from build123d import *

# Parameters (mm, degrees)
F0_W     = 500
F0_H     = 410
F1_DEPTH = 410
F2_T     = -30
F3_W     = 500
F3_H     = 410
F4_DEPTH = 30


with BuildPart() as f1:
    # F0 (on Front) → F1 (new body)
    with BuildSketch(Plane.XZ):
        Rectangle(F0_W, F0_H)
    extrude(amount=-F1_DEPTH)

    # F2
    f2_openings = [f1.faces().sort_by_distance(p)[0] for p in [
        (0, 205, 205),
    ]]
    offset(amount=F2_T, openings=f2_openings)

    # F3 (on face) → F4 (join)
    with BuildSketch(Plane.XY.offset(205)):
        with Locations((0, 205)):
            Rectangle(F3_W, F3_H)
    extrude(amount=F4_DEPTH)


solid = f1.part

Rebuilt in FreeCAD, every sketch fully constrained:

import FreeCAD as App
import Part
import Sketcher
from FreeCAD import Vector


def faces_at(feature, points):
    """Names of the faces that lie closest to the given points."""
    faces = feature.Shape.Faces
    near = lambda p: min(range(len(faces)), key=lambda i: faces[i].distToShape(Part.Vertex(*p))[0])
    return sorted({f"Face{near(p) + 1}" for p in points})

doc = App.newDocument("Part")
body = doc.addObject("PartDesign::Body", "Body")

# Sketch on XZ plane
sketch1 = body.newObject("Sketcher::SketchObject", "Sketch")
sketch1.AttachmentSupport = (doc.getObject("XZ_Plane"), [""])
sketch1.MapMode = "FlatFace"
sketch1.addGeometry(Part.LineSegment(Vector(-250, 205, 0), Vector(-250, -205, 0)), False)
sketch1.addGeometry(Part.LineSegment(Vector(-250, -205, 0), Vector(250, -205, 0)), False)
sketch1.addGeometry(Part.LineSegment(Vector(250, -205, 0), Vector(250, 205, 0)), False)
sketch1.addGeometry(Part.LineSegment(Vector(250, 205, 0), Vector(-250, 205, 0)), False)
sketch1.addConstraint(Sketcher.Constraint("Coincident", 0, 2, 1, 1))
sketch1.addConstraint(Sketcher.Constraint("Coincident", 1, 2, 2, 1))
sketch1.addConstraint(Sketcher.Constraint("Coincident", 2, 2, 3, 1))
sketch1.addConstraint(Sketcher.Constraint("Coincident", 3, 2, 0, 1))
sketch1.addConstraint(Sketcher.Constraint("Vertical", 0))
sketch1.addConstraint(Sketcher.Constraint("Horizontal", 1))
sketch1.addConstraint(Sketcher.Constraint("Vertical", 2))
sketch1.addConstraint(Sketcher.Constraint("Horizontal", 3))
sketch1.addConstraint(Sketcher.Constraint("Symmetric", 0, 2, 2, 2, -1, 1))
sketch1.addConstraint(Sketcher.Constraint("DistanceX", 1, 1, 1, 2, 500.0))
sketch1.addConstraint(Sketcher.Constraint("DistanceY", 0, 2, 0, 1, 410.0))
pad1 = body.newObject("PartDesign::Pad", "Pad")
pad1.Profile = sketch1
pad1.Length = 410
pad1.Reversed = True
doc.recompute()

thickness = body.newObject("PartDesign::Thickness", "Thickness")
thickness.Base = (pad1, faces_at(pad1, [(0, 205, 205)]))
thickness.Value = 30
thickness.Reversed = True
thickness.Join = "Arc"

# Sketch on XY plane
sketch2 = body.newObject("Sketcher::SketchObject", "Sketch001")
sketch2.AttachmentSupport = (doc.getObject("XY_Plane"), [""])
sketch2.MapMode = "FlatFace"
sketch2.AttachmentOffset = App.Placement(Vector(0, 0, 205), App.Rotation())
sketch2.addGeometry(Part.LineSegment(Vector(-250, 410, 0), Vector(-250, 0, 0)), False)
sketch2.addGeometry(Part.LineSegment(Vector(-250, 0, 0), Vector(250, 0, 0)), False)
sketch2.addGeometry(Part.LineSegment(Vector(250, 0, 0), Vector(250, 410, 0)), False)
sketch2.addGeometry(Part.LineSegment(Vector(250, 410, 0), Vector(-250, 410, 0)), False)
sketch2.addConstraint(Sketcher.Constraint("Coincident", 0, 2, 1, 1))
sketch2.addConstraint(Sketcher.Constraint("Coincident", 1, 2, 2, 1))
sketch2.addConstraint(Sketcher.Constraint("Coincident", 2, 2, 3, 1))
sketch2.addConstraint(Sketcher.Constraint("Coincident", 3, 2, 0, 1))
sketch2.addConstraint(Sketcher.Constraint("Vertical", 0))
sketch2.addConstraint(Sketcher.Constraint("Horizontal", 1))
sketch2.addConstraint(Sketcher.Constraint("Vertical", 2))
sketch2.addConstraint(Sketcher.Constraint("Horizontal", 3))
sketch2.addConstraint(Sketcher.Constraint("Symmetric", 0, 2, 1, 2, -1, 1))
sketch2.addConstraint(Sketcher.Constraint("DistanceX", 1, 1, 1, 2, 500.0))
sketch2.addConstraint(Sketcher.Constraint("DistanceY", 0, 2, 0, 1, 410.0))
pad2 = body.newObject("PartDesign::Pad", "Pad001")
pad2.Profile = sketch2
pad2.Length = 30

doc.recompute()
